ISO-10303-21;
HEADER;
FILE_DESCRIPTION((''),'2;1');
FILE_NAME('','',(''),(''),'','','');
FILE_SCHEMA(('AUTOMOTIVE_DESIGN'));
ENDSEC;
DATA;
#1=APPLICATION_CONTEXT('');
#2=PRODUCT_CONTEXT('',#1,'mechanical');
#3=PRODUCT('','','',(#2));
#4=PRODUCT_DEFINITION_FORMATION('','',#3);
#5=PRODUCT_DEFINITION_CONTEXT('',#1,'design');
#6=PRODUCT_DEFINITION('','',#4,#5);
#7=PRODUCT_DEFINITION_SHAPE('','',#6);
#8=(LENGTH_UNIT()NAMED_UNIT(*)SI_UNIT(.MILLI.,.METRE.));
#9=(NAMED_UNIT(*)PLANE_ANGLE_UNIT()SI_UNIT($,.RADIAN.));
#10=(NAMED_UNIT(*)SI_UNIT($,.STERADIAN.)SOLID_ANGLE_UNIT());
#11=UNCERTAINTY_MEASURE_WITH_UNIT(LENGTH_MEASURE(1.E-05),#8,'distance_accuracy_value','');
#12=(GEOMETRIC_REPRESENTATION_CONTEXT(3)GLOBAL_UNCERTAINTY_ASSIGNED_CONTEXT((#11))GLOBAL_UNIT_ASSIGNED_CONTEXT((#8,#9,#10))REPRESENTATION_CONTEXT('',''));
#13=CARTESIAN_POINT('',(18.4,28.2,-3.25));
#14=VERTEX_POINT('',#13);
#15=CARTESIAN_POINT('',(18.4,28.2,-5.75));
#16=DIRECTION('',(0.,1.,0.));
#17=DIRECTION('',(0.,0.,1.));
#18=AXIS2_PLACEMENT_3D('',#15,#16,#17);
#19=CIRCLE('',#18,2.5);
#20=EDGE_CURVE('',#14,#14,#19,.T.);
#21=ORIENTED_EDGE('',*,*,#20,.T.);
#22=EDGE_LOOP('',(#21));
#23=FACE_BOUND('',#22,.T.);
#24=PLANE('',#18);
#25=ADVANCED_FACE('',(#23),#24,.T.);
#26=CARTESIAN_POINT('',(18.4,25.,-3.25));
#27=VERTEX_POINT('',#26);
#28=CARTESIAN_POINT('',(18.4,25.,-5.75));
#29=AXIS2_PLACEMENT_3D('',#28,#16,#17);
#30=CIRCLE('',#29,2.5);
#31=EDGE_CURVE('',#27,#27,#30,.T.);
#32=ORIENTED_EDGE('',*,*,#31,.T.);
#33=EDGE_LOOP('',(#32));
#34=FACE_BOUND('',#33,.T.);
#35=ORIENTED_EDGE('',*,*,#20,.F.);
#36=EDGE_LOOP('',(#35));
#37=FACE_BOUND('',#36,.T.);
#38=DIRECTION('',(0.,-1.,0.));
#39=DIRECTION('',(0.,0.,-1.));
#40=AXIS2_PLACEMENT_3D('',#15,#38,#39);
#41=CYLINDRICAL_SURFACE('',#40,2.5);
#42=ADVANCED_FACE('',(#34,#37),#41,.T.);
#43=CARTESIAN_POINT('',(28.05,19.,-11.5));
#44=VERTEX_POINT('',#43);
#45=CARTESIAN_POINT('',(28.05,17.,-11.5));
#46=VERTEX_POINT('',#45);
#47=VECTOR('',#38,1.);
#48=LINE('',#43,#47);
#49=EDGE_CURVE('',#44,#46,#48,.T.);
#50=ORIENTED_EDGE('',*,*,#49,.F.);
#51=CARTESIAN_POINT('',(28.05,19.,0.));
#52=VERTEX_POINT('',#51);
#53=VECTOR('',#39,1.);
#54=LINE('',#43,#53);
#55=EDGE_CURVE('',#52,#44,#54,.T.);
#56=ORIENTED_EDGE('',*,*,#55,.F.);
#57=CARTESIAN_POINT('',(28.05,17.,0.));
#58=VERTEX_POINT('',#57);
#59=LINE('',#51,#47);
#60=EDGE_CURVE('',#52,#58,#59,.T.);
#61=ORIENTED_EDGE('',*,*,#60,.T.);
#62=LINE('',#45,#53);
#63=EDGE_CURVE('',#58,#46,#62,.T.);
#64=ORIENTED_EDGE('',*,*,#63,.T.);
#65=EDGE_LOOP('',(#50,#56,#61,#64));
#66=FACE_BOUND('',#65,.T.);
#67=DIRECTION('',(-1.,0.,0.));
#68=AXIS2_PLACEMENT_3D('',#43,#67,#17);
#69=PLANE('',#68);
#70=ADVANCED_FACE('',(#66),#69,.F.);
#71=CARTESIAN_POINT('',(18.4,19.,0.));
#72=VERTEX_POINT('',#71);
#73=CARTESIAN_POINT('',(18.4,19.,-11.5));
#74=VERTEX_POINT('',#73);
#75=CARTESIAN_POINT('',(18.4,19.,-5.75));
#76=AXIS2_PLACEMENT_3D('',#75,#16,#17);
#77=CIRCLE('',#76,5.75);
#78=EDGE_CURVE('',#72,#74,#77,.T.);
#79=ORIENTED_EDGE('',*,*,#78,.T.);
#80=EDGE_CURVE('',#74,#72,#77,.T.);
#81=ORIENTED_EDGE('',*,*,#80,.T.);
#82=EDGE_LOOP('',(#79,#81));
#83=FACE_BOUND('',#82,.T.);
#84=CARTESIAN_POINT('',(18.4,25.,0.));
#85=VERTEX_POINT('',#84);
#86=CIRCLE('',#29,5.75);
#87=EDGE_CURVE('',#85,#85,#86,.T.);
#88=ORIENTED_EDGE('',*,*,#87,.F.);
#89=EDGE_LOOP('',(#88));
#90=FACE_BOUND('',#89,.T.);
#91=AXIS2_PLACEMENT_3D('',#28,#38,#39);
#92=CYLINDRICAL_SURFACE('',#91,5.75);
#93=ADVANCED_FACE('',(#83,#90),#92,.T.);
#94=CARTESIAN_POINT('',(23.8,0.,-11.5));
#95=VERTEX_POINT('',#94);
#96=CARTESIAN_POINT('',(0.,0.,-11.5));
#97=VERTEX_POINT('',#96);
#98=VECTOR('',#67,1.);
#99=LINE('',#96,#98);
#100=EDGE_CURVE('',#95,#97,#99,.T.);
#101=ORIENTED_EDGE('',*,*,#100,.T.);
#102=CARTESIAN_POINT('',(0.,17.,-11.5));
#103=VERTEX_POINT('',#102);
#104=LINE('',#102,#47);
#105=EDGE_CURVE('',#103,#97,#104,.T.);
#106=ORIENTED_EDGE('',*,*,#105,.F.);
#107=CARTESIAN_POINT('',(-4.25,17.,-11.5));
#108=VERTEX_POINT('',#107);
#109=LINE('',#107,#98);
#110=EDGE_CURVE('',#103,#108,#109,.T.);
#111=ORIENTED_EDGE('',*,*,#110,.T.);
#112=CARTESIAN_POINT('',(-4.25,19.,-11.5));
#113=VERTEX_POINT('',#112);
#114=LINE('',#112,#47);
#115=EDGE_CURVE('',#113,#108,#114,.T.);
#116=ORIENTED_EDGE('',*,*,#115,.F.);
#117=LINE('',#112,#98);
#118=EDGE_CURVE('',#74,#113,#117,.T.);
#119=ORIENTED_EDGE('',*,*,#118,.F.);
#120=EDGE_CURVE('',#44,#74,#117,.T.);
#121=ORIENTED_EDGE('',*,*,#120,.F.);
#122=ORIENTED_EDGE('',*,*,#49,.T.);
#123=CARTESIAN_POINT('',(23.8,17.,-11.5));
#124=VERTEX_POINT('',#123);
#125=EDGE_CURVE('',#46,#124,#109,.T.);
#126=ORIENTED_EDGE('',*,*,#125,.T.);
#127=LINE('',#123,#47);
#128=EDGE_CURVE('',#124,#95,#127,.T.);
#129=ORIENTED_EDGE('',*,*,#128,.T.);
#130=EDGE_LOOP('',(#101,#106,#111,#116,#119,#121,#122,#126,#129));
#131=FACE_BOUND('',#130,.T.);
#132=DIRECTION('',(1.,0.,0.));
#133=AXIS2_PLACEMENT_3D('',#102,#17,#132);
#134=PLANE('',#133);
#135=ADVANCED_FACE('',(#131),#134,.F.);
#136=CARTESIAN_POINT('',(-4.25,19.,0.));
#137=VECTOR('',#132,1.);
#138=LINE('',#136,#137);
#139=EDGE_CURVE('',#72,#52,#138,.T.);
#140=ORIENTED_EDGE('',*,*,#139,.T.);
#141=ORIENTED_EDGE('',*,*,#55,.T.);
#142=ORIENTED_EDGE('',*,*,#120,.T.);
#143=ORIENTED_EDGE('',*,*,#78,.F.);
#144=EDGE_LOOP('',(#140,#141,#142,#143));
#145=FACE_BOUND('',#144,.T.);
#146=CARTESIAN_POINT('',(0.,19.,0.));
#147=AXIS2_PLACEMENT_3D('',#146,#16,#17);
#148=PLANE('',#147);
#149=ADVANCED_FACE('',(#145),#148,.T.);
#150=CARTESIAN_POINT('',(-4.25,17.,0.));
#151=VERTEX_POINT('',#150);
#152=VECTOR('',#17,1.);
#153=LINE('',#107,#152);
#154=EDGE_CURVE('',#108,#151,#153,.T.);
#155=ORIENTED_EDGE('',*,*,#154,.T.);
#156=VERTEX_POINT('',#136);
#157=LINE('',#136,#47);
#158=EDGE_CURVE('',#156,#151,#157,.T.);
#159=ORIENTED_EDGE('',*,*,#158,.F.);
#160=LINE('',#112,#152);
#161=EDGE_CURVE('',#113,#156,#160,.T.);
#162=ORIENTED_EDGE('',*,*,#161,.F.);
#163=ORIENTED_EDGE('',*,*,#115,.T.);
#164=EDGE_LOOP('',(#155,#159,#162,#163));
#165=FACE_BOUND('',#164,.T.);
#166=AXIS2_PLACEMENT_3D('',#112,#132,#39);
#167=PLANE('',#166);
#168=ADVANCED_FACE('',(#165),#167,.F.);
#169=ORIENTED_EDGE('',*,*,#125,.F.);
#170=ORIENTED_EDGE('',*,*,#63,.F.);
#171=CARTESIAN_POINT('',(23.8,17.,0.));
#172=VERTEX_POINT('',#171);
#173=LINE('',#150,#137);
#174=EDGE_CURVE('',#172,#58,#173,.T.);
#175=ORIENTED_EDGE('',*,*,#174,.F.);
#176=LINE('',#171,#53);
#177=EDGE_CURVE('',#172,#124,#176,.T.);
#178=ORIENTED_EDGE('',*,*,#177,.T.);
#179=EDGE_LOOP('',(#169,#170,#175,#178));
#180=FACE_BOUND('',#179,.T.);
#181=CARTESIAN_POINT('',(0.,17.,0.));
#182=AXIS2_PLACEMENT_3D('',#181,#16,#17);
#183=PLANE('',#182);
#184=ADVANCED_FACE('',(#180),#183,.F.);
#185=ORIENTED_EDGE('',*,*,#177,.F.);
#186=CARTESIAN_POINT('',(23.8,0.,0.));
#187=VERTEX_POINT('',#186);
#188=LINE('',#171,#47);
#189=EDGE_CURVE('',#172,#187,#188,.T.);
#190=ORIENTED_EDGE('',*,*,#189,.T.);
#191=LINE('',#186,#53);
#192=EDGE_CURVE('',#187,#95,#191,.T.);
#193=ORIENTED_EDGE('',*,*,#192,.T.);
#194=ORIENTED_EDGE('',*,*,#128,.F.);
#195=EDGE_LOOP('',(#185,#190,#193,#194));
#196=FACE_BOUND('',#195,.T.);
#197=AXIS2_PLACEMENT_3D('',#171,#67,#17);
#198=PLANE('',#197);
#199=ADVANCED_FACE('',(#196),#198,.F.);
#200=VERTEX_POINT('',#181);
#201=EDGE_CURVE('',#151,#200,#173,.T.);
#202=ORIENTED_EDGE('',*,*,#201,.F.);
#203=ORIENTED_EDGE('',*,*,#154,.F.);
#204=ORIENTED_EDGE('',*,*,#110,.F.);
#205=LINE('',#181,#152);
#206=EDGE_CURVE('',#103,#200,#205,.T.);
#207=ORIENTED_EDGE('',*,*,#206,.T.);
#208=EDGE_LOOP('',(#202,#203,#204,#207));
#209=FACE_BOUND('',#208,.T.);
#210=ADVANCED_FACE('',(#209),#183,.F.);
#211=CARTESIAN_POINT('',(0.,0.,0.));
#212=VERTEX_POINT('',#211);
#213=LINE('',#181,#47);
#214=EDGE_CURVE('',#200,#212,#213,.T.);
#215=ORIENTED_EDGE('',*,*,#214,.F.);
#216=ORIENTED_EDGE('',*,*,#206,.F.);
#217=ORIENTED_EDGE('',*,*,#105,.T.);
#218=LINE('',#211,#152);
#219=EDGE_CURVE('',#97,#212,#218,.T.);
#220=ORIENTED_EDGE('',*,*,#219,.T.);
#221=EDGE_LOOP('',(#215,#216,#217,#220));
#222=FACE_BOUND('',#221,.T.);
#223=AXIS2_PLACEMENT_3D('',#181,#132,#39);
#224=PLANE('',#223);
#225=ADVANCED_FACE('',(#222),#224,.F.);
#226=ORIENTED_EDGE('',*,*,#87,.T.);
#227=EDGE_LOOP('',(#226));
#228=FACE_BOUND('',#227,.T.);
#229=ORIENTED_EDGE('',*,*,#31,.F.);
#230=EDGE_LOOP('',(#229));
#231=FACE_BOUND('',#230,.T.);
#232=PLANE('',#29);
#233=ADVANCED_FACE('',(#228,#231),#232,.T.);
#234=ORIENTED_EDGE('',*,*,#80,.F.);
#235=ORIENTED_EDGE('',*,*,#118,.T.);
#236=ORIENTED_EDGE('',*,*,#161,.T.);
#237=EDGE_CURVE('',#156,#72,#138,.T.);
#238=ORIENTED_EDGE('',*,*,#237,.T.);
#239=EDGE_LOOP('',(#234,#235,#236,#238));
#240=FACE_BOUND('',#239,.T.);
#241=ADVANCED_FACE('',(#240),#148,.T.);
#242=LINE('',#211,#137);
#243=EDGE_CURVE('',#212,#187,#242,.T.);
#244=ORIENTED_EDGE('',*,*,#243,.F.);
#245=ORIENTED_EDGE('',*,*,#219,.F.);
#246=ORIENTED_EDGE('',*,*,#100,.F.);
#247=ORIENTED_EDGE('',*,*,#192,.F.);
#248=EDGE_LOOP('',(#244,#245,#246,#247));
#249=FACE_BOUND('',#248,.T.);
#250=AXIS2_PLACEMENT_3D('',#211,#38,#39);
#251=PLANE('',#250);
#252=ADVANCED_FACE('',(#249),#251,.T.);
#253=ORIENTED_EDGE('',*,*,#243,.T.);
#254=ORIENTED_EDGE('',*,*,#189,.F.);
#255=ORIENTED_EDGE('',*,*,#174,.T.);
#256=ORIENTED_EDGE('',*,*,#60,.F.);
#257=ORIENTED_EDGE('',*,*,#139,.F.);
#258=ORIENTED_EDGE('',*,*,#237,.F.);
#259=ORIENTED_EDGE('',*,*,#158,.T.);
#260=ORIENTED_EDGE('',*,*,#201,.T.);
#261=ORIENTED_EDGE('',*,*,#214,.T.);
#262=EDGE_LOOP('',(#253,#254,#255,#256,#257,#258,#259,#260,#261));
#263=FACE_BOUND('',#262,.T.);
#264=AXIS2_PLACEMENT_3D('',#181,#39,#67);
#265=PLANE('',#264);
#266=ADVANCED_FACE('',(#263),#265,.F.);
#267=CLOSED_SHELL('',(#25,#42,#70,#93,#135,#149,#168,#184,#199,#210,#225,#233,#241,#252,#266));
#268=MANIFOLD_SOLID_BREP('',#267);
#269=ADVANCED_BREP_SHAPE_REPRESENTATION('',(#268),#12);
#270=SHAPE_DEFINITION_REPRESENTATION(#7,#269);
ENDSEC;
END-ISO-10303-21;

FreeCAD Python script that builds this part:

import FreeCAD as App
import Part
import Sketcher
from FreeCAD import Vector

doc = App.newDocument("Part")
body = doc.addObject("PartDesign::Body", "Body")

# Sketch on XZ plane
sketch1 = body.newObject("Sketcher::SketchObject", "Sketch")
sketch1.AttachmentSupport = (doc.getObject("XZ_Plane"), [""])
sketch1.MapMode = "FlatFace"
sketch1.addGeometry([
    Part.LineSegment(Vector(0, -12, 0), Vector(0, 0, 0)),
    Part.LineSegment(Vector(0, 0, 0), Vector(24, 0, 0)),
    Part.LineSegment(Vector(24, 0, 0), Vector(24, -12, 0)),
    Part.LineSegment(Vector(24, -12, 0), Vector(0, -12, 0)),
], False)
sketch1.addConstraint([
    Sketcher.Constraint("Coincident", 0, 2, 1, 1),
    Sketcher.Constraint("Coincident", 1, 2, 2, 1),
    Sketcher.Constraint("Coincident", 2, 2, 3, 1),
    Sketcher.Constraint("Coincident", 3, 2, 0, 1),
    Sketcher.Constraint("Vertical", 0),
    Sketcher.Constraint("Horizontal", 1),
    Sketcher.Constraint("Vertical", 2),
    Sketcher.Constraint("Horizontal", 3),
    Sketcher.Constraint("Coincident", 0, 2, -1, 1),
    Sketcher.Constraint("DistanceX", 1, 1, 1, 2, 23.8),
    Sketcher.Constraint("DistanceY", 0, 1, 0, 2, 11.5),
])
pad1 = body.newObject("PartDesign::Pad", "Pad")
pad1.Profile = sketch1
pad1.Length = 17
pad1.Reversed = True

# Sketch on XZ plane
sketch2 = body.newObject("Sketcher::SketchObject", "Sketch001")
sketch2.AttachmentSupport = (doc.getObject("XZ_Plane"), [""])
sketch2.MapMode = "FlatFace"
sketch2.AttachmentOffset = App.Placement(Vector(0, 0, -17), App.Rotation())
sketch2.addGeometry([
    Part.LineSegment(Vector(-4, -12, 0), Vector(-4, 0, 0)),
    Part.LineSegment(Vector(-4, 0, 0), Vector(28, 0, 0)),
    Part.LineSegment(Vector(28, 0, 0), Vector(28, -12, 0)),
    Part.LineSegment(Vector(28, -12, 0), Vector(-4, -12, 0)),
], False)
sketch2.addConstraint([
    Sketcher.Constraint("Coincident", 0, 2, 1, 1),
    Sketcher.Constraint("Coincident", 1, 2, 2, 1),
    Sketcher.Constraint("Coincident", 2, 2, 3, 1),
    Sketcher.Constraint("Coincident", 3, 2, 0, 1),
    Sketcher.Constraint("Vertical", 0),
    Sketcher.Constraint("Horizontal", 1),
    Sketcher.Constraint("Vertical", 2),
    Sketcher.Constraint("Horizontal", 3),
    Sketcher.Constraint("PointOnObject", 0, 2, -1),
    Sketcher.Constraint("DistanceX", 1, 1, 1, 2, 32.3),
    Sketcher.Constraint("DistanceY", 0, 1, 0, 2, 11.5),
    Sketcher.Constraint("DistanceX", 0, 2, -1, 1, 4.25),
])
pad2 = body.newObject("PartDesign::Pad", "Pad001")
pad2.Profile = sketch2
pad2.Length = 2
pad2.Reversed = True

# Sketch on XZ plane
sketch3 = body.newObject("Sketcher::SketchObject", "Sketch002")
sketch3.AttachmentSupport = (doc.getObject("XZ_Plane"), [""])
sketch3.MapMode = "FlatFace"
sketch3.AttachmentOffset = App.Placement(Vector(0, 0, -19), App.Rotation())
sketch3.addGeometry(Part.Circle(Vector(18, -6, 0), Vector(0, 0, 1), 6), False)
sketch3.addConstraint([
    Sketcher.Constraint("Diameter", 0, 11.5),
    Sketcher.Constraint("DistanceX", -1, 1, 0, 3, 18.4),
    Sketcher.Constraint("DistanceY", 0, 3, -1, 1, 5.75),
])
pad3 = body.newObject("PartDesign::Pad", "Pad002")
pad3.Profile = sketch3
pad3.Length = 6
pad3.Reversed = True

# Sketch on XZ plane
sketch4 = body.newObject("Sketcher::SketchObject", "Sketch003")
sketch4.AttachmentSupport = (doc.getObject("XZ_Plane"), [""])
sketch4.MapMode = "FlatFace"
sketch4.AttachmentOffset = App.Placement(Vector(0, 0, -25), App.Rotation())
sketch4.addGeometry(Part.Circle(Vector(18.4, -5.8, 0), Vector(0, 0, 1), 2.5), False)
sketch4.addConstraint([
    Sketcher.Constraint("Diameter", 0, 5.0),
    Sketcher.Constraint("DistanceX", -1, 1, 0, 3, 18.4),
    Sketcher.Constraint("DistanceY", 0, 3, -1, 1, 5.75),
])
pad4 = body.newObject("PartDesign::Pad", "Pad003")
pad4.Profile = sketch4
pad4.Length = 3.2
pad4.Reversed = True

doc.recompute()
